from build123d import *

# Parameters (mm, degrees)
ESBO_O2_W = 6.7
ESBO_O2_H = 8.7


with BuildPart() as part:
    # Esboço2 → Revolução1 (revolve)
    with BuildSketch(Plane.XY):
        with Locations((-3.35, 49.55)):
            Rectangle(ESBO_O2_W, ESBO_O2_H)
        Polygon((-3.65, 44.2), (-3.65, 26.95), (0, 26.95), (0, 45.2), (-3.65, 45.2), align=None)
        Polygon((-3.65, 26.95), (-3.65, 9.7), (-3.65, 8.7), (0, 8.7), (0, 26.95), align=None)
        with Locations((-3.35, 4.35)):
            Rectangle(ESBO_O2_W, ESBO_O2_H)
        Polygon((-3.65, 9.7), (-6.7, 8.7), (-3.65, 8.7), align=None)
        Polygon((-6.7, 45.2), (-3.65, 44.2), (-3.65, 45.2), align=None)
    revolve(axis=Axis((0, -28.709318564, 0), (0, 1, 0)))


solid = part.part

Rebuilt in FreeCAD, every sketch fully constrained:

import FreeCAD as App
import Part
import Sketcher

V = App.Vector
Q = App.Units.Quantity

doc = App.newDocument("Part")
body = doc.addObject("PartDesign::Body", "Body")

sketch1 = doc.addObject("Sketcher::SketchObject", "Sketch")
body.addObject(sketch1)
sketch1.AttachmentSupport = (doc.XY_Plane, [""])
sketch1.MapMode = "FlatFace"
sketch1.addGeometry(Part.LineSegment(V(-6.7, 53.9, 0), V(-6.7, 45.2, 0)), False)
sketch1.addGeometry(Part.LineSegment(V(-6.7, 45.2, 0), V(-3.6, 44.2, 0)), False)
sketch1.addGeometry(Part.LineSegment(V(-3.6, 44.2, 0), V(-3.6, 9.7, 0)), False)
sketch1.addGeometry(Part.LineSegment(V(-3.6, 9.7, 0), V(-6.7, 8.7, 0)), False)
sketch1.addGeometry(Part.LineSegment(V(-6.7, 8.7, 0), V(-6.7, 0, 0)), False)
sketch1.addGeometry(Part.LineSegment(V(-6.7, 0, 0), V(0, 0, 0)), False)
sketch1.addGeometry(Part.LineSegment(V(0, 0, 0), V(0, 53.9, 0)), False)
sketch1.addGeometry(Part.LineSegment(V(0, 53.9, 0), V(-6.7, 53.9, 0)), False)
sketch1.addConstraint(Sketcher.Constraint("Coincident", 0, 2, 1, 1))
sketch1.addConstraint(Sketcher.Constraint("Coincident", 1, 2, 2, 1))
sketch1.addConstraint(Sketcher.Constraint("Coincident", 2, 2, 3, 1))
sketch1.addConstraint(Sketcher.Constraint("Coincident", 3, 2, 4, 1))
sketch1.addConstraint(Sketcher.Constraint("Coincident", 4, 2, 5, 1))
sketch1.addConstraint(Sketcher.Constraint("Coincident", 5, 2, 6, 1))
sketch1.addConstraint(Sketcher.Constraint("Coincident", 6, 2, 7, 1))
sketch1.addConstraint(Sketcher.Constraint("Coincident", 7, 2, 0, 1))
sketch1.addConstraint(Sketcher.Constraint("Vertical", 0))
sketch1.addConstraint(Sketcher.Constraint("Vertical", 2))
sketch1.addConstraint(Sketcher.Constraint("Vertical", 4))
sketch1.addConstraint(Sketcher.Constraint("Horizontal", 5))
sketch1.addConstraint(Sketcher.Constraint("Vertical", 6))
sketch1.addConstraint(Sketcher.Constraint("Horizontal", 7))
sketch1.addConstraint(Sketcher.Constraint("Coincident", 5, 2, -1, 1))
sketch1.addConstraint(Sketcher.Constraint("Vertical", 0, 2, 3, 2))
sketch1.addConstraint(Sketcher.Constraint("Equal", 0, 4))
sketch1.addConstraint(Sketcher.Constraint("Equal", 1, 3))
sketch1.addConstraint(Sketcher.Constraint("DistanceX", 5, 1, 5, 2, Q("6.7 mm")))
sketch1.addConstraint(Sketcher.Constraint("DistanceY", 0, 2, 0, 1, Q("8.7 mm")))
sketch1.addConstraint(Sketcher.Constraint("DistanceY", 2, 2, 2, 1, Q("34.5 mm")))
sketch1.addConstraint(Sketcher.Constraint("DistanceY", 6, 1, 6, 2, Q("53.9 mm")))
sketch1.addConstraint(Sketcher.Constraint("DistanceX", 1, 2, -1, 1, Q("3.65 mm")))
revolution = doc.addObject("PartDesign::Revolution", "Revolution")
body.addObject(revolution)
revolution.Profile = sketch1
revolution.ReferenceAxis = (sketch1, ["V_Axis"])
revolution.Angle = 360

doc.recompute()
